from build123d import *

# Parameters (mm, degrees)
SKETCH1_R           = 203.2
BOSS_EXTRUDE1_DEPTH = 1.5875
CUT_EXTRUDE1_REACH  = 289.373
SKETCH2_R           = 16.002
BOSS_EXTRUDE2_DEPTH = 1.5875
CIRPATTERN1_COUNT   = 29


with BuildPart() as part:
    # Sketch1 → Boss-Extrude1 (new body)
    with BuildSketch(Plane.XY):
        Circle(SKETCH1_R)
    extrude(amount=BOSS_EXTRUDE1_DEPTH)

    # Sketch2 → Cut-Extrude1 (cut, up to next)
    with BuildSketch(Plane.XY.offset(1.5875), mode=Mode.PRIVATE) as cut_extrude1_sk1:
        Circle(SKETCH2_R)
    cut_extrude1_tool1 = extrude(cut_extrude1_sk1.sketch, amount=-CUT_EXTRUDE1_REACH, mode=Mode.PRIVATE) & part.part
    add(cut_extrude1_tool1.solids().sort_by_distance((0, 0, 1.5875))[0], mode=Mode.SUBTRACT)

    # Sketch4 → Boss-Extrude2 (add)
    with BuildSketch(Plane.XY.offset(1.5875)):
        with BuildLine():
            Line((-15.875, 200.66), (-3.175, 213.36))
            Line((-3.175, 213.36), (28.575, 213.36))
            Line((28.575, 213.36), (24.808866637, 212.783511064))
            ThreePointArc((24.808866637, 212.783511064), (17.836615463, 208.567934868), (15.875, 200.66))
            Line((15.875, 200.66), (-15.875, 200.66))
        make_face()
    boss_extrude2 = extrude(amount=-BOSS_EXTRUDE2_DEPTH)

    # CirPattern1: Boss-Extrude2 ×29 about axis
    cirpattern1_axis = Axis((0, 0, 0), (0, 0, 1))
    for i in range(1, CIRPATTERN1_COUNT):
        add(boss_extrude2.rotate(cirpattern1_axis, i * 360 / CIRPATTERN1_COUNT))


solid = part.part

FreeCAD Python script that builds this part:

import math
import FreeCAD as App
import Part
import Sketcher
Q = App.Units.Quantity

doc = App.newDocument("Part")
body = doc.addObject("PartDesign::Body", "Body")

sketch1 = body.newObject("Sketcher::SketchObject", "Sketch")
sketch1.AttachmentSupport = (doc.getObject("XY_Plane"), [""])
sketch1.MapMode = "FlatFace"
sketch1.addGeometry(Part.Circle(App.Vector(0, 0, 0), App.Vector(0, 0, 1), 203), False)
sketch1.addConstraint(Sketcher.Constraint("Coincident", 0, 3, -1, 1))
sketch1.addConstraint(Sketcher.Constraint("Diameter", 0, Q("16 in")))
pad1 = body.newObject("PartDesign::Pad", "Pad")
pad1.Profile = sketch1
pad1.Length = Q("0.0625 in")

sketch2 = body.newObject("Sketcher::SketchObject", "Sketch001")
sketch2.AttachmentSupport = (doc.getObject("XY_Plane"), [""])
sketch2.MapMode = "FlatFace"
sketch2.AttachmentOffset = App.Placement(App.Vector(0, 0, 0.0625 * 25.4), App.Rotation())
sketch2.addGeometry(Part.Circle(App.Vector(0, 0, 0), App.Vector(0, 0, 1), 16), False)
sketch2.addConstraint(Sketcher.Constraint("Coincident", 0, 3, -1, 1))
sketch2.addConstraint(Sketcher.Constraint("Diameter", 0, Q("1.26 in")))
pocket1 = body.newObject("PartDesign::Pocket", "Pocket")
pocket1.Profile = sketch2
pocket1.Type = "UpToFirst"

sketch3 = body.newObject("Sketcher::SketchObject", "Sketch002")
sketch3.AttachmentSupport = (doc.getObject("XY_Plane"), [""])
sketch3.MapMode = "FlatFace"
sketch3.AttachmentOffset = App.Placement(App.Vector(0, 0, 0.0625 * 25.4), App.Rotation())
sketch3.addGeometry(Part.LineSegment(App.Vector(-3.2, 213.4, 0), App.Vector(-15.9, 200.7, 0)), False)
sketch3.addGeometry(Part.LineSegment(App.Vector(-15.9, 200.7, 0), App.Vector(15.9, 200.7, 0)), False)
sketch3.addGeometry(Part.ArcOfCircle(Part.Circle(App.Vector(26.4, 202.2, 0), App.Vector(0, 0, 1), 10.7), math.radians(99), math.radians(189)), False)
sketch3.addGeometry(Part.LineSegment(App.Vector(24.8, 212.8, 0), App.Vector(28.6, 213.4, 0)), False)
sketch3.addGeometry(Part.LineSegment(App.Vector(28.6, 213.4, 0), App.Vector(-3.2, 213.4, 0)), False)
sketch3.addConstraint(Sketcher.Constraint("Coincident", 0, 2, 1, 1))
sketch3.addConstraint(Sketcher.Constraint("Coincident", 1, 2, 2, 2))
sketch3.addConstraint(Sketcher.Constraint("Tangent", 2, 1, 3, 1))
sketch3.addConstraint(Sketcher.Constraint("Coincident", 3, 2, 4, 1))
sketch3.addConstraint(Sketcher.Constraint("Coincident", 4, 2, 0, 1))
sketch3.addConstraint(Sketcher.Constraint("Horizontal", 1))
sketch3.addConstraint(Sketcher.Constraint("Horizontal", 4))
sketch3.addConstraint(Sketcher.Constraint("Equal", 1, 4))
sketch3.addConstraint(Sketcher.Constraint("Angle", 0, Q("-135 deg")))
sketch3.addConstraint(Sketcher.Constraint("DistanceX", 1, 1, 1, 2, Q("1.25 in")))
sketch3.addConstraint(Sketcher.Constraint("DistanceY", -1, 1, 0, 2, Q("7.9 in")))
sketch3.addConstraint(Sketcher.Constraint("DistanceY", -1, 1, 3, 2, Q("8.4 in")))
sketch3.addConstraint(Sketcher.Constraint("Radius", 2, Q("0.4199 in")))
sketch3.addConstraint(Sketcher.Constraint("Distance", 3, Q("0.15 in")))
sketch3.addConstraint(Sketcher.Constraint("DistanceX", 0, 2, -1, 1, Q("0.625 in")))
pad2 = body.newObject("PartDesign::Pad", "Pad001")
pad2.Profile = sketch3
pad2.Length = Q("0.0625 in")
pad2.Reversed = True
doc.recompute()

polarpattern = body.newObject("PartDesign::PolarPattern", "PolarPattern")
polarpattern.Originals = [pad2]
polarpattern.Axis = (doc.getObject("Z_Axis"), [""])
polarpattern.Angle = 360
polarpattern.Occurrences = 29
body.Tip = polarpattern

doc.recompute()
